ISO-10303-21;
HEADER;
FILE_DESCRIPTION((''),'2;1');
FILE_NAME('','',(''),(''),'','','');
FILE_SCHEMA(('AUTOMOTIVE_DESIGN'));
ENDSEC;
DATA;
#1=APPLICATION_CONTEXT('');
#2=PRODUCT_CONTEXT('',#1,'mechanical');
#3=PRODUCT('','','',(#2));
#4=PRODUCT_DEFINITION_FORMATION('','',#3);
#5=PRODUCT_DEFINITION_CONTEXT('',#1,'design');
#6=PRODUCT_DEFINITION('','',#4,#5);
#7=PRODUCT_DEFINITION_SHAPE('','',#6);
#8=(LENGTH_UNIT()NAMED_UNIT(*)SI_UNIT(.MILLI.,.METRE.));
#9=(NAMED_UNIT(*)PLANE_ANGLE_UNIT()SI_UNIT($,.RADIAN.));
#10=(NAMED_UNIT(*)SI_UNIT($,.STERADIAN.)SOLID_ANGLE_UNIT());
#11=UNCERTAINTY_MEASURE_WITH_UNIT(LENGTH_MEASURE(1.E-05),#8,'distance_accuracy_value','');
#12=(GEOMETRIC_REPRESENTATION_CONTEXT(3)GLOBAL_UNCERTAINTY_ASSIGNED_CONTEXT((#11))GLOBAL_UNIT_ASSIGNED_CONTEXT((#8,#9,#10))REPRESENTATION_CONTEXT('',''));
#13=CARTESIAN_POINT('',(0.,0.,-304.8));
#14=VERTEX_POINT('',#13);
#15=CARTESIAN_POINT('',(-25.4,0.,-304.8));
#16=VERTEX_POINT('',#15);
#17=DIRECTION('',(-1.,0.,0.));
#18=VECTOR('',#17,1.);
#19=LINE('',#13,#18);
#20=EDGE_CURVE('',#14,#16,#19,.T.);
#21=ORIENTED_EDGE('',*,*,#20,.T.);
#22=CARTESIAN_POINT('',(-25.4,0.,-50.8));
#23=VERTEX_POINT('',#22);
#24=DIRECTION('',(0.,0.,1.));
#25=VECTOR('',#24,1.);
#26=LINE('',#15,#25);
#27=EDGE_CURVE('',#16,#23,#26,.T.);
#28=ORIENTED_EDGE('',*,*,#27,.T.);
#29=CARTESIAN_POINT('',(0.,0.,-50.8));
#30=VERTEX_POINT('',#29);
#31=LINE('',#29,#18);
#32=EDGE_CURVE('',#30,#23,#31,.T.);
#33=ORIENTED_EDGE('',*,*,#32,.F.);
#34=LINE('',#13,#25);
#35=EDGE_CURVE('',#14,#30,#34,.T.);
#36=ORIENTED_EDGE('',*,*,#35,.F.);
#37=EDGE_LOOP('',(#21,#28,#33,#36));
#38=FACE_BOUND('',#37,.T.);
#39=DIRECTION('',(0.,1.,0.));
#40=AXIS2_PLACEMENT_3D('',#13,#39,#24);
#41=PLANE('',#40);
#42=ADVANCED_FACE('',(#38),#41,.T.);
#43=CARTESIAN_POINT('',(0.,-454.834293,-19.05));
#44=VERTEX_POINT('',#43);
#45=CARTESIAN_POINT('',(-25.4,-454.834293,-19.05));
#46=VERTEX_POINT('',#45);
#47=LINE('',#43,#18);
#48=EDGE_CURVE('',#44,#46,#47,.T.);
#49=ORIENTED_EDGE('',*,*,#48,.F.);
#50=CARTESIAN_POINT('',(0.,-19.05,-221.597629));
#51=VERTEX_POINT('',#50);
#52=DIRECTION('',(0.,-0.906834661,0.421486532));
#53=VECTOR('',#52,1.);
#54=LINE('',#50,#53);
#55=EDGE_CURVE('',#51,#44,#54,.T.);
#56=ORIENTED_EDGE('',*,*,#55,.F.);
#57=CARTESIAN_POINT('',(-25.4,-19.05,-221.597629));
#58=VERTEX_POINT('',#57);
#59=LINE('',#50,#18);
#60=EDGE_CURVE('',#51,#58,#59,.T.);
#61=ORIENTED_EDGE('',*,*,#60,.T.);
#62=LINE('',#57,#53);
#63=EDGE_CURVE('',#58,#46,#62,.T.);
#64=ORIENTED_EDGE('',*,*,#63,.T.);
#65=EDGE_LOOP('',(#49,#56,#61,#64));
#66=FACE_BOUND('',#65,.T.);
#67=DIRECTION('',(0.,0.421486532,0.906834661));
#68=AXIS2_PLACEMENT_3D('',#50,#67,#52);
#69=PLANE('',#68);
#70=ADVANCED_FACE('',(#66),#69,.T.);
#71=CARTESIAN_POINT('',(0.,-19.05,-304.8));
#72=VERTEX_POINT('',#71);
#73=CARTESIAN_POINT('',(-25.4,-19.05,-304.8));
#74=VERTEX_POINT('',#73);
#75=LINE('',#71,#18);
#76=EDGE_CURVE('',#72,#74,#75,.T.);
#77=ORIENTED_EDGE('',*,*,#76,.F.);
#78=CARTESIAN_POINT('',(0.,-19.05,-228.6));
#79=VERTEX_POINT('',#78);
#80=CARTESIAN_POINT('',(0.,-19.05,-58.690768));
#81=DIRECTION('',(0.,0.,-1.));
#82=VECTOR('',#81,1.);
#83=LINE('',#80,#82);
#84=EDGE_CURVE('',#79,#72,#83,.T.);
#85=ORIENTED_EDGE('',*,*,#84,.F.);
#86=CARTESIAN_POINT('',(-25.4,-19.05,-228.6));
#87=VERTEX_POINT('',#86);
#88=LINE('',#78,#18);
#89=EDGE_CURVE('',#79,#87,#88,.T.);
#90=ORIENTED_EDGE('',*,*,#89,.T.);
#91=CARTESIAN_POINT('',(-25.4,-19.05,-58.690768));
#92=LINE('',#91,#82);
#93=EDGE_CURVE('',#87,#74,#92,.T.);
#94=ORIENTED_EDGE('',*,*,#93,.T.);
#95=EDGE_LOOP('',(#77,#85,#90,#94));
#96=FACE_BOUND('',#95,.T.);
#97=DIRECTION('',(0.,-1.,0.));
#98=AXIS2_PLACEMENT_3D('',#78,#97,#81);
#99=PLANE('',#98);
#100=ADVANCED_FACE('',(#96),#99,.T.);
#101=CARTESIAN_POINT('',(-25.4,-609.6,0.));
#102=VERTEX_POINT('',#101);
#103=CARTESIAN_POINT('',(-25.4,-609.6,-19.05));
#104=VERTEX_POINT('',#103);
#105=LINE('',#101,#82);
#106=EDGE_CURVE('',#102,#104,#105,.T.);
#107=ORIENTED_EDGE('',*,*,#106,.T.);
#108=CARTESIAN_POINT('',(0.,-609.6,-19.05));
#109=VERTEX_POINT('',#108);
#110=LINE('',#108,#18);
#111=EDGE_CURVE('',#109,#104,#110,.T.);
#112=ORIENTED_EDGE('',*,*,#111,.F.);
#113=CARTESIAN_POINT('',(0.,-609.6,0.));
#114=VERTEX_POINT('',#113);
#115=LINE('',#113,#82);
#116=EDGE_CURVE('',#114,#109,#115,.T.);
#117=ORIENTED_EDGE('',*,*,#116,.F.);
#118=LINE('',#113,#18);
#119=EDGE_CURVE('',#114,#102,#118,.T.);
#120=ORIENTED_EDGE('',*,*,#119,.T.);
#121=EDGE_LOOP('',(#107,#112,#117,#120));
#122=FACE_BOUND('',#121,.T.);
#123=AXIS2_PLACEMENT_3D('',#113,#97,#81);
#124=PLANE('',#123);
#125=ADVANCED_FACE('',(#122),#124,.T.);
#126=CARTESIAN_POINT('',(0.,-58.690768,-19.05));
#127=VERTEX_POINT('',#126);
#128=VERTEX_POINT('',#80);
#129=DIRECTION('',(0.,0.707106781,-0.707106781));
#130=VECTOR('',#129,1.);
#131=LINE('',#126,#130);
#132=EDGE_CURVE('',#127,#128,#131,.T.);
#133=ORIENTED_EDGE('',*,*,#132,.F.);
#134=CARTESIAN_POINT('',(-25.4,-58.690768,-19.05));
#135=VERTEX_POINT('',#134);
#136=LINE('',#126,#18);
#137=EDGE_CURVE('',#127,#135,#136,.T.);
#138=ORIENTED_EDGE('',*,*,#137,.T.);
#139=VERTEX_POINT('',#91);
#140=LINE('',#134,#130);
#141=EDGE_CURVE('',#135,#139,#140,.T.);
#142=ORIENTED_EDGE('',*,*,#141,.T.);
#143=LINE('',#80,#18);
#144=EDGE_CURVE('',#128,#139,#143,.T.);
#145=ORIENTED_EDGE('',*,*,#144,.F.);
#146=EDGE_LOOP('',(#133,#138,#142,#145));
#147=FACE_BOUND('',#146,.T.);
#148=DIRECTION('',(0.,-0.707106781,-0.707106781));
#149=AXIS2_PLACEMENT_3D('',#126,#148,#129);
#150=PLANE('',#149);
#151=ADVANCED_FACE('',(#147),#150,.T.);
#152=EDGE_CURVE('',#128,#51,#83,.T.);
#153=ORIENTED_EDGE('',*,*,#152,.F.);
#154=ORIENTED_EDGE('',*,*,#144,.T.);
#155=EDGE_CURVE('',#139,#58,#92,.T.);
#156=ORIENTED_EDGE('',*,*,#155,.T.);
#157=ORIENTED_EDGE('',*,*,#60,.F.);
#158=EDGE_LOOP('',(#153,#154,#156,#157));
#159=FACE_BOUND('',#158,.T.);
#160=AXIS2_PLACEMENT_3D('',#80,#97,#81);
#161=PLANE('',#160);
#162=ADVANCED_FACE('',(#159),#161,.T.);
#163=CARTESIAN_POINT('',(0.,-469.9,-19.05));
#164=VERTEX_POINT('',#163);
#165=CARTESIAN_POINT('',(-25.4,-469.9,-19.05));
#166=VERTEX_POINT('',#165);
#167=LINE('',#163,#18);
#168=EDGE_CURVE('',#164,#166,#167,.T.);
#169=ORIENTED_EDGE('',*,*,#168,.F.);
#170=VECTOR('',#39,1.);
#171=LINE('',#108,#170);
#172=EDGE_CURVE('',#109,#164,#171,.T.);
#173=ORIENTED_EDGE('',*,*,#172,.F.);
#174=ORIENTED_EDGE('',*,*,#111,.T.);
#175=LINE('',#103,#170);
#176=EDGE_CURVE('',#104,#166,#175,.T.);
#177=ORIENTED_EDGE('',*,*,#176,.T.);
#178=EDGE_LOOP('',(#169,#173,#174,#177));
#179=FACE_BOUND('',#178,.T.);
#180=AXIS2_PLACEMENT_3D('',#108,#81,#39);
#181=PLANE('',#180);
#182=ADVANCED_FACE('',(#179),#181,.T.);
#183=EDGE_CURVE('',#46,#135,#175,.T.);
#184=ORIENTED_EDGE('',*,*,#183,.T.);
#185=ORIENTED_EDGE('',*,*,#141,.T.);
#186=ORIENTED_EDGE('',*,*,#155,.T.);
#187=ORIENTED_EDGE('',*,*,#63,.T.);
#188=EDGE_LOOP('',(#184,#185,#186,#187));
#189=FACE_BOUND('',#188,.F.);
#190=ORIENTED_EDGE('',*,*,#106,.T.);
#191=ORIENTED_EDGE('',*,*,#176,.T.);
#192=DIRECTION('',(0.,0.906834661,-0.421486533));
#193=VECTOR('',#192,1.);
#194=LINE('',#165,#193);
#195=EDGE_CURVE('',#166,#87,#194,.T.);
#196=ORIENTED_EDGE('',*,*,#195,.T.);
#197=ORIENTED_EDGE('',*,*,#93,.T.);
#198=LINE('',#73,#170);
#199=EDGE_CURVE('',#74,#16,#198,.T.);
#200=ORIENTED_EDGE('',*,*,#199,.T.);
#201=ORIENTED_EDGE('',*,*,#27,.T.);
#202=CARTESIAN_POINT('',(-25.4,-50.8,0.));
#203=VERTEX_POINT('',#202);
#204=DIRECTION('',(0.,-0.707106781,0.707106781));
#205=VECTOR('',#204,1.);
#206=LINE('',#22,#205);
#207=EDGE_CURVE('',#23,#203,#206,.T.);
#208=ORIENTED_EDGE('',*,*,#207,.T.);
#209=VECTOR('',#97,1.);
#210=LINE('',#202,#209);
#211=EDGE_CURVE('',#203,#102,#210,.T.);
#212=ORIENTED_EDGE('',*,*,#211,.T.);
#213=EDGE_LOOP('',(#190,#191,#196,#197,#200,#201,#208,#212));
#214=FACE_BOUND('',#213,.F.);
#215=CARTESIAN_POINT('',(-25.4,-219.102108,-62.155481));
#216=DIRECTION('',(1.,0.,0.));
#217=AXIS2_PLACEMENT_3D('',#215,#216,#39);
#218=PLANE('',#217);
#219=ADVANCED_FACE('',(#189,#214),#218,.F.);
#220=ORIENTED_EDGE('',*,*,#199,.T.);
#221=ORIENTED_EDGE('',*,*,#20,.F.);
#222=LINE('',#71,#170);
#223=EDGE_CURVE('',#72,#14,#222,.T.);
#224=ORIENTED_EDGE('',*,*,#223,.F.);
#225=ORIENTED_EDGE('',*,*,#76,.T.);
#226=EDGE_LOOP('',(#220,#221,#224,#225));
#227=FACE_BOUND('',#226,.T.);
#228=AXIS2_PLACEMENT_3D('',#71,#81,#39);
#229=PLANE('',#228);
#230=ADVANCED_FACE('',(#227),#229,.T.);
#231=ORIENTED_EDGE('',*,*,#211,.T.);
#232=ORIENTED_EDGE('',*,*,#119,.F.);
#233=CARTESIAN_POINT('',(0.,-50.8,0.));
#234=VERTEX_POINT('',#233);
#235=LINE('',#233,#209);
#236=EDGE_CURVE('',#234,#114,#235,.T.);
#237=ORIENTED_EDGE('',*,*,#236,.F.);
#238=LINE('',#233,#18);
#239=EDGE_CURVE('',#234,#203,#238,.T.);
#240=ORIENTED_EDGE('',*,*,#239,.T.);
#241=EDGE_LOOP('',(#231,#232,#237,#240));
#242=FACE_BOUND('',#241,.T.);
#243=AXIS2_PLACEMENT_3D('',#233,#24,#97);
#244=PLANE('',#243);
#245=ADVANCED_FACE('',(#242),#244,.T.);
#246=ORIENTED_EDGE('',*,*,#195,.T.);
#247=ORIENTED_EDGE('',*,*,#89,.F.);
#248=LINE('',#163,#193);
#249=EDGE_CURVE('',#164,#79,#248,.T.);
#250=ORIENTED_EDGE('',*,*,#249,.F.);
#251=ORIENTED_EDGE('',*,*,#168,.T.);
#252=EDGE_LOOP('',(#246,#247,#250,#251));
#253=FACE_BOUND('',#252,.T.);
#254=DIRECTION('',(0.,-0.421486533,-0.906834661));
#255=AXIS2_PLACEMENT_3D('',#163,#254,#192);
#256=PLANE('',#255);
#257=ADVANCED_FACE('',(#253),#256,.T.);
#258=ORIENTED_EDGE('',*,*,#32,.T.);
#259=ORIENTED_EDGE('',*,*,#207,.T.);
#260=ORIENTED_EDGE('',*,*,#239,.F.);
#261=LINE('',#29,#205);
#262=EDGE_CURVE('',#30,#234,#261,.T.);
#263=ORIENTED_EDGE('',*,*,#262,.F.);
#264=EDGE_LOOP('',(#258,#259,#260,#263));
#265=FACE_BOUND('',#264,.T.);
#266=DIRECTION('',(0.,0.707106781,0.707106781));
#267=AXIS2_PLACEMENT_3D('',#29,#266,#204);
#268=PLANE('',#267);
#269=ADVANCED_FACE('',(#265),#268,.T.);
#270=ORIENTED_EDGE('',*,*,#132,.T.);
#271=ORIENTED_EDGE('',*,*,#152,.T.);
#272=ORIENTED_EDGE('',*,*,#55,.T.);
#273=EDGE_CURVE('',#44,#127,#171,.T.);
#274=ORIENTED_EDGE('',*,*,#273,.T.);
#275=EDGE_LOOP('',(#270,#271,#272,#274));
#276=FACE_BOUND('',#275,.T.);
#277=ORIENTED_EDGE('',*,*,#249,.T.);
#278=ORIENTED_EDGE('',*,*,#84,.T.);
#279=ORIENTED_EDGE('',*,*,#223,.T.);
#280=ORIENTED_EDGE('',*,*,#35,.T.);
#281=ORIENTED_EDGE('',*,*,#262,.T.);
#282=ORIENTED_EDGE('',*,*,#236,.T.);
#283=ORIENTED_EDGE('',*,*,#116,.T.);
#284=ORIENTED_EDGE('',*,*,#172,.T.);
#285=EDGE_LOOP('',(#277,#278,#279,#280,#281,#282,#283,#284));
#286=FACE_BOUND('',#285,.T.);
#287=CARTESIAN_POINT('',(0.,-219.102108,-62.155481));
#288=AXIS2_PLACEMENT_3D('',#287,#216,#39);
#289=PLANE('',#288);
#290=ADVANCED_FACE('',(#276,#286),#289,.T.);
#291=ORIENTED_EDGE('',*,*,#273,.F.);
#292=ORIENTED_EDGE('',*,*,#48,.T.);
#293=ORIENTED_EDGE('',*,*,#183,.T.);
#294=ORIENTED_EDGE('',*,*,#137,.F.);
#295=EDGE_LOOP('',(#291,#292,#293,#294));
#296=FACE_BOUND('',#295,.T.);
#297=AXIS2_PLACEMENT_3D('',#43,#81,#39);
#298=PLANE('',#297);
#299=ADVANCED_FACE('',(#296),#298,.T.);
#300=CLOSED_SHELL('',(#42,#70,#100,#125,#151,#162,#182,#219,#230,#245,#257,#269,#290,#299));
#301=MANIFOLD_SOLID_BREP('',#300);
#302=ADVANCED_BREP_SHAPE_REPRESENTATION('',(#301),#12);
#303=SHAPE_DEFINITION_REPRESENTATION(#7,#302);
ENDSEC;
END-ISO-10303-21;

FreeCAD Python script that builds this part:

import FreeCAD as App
import Part
import Sketcher

V = App.Vector
Q = App.Units.Quantity

doc = App.newDocument("Part")
body = doc.addObject("PartDesign::Body", "Body")

sketch1 = body.newObject("Sketcher::SketchObject", "Sketch")
sketch1.AttachmentSupport = (doc.getObject("YZ_Plane"), [""])
sketch1.MapMode = "FlatFace"
sketch1.addGeometry(Part.LineSegment(V(0, -51, 0), V(-51, 0, 0)), False)
sketch1.addGeometry(Part.LineSegment(V(-51, 0, 0), V(-610, 0, 0)), False)
sketch1.addGeometry(Part.LineSegment(V(-610, 0, 0), V(-610, -19, 0)), False)
sketch1.addGeometry(Part.LineSegment(V(-610, -19, 0), V(-470, -19, 0)), False)
sketch1.addGeometry(Part.LineSegment(V(-470, -19, 0), V(-19, -229, 0)), False)
sketch1.addGeometry(Part.LineSegment(V(-19, -229, 0), V(-19, -305, 0)), False)
sketch1.addGeometry(Part.LineSegment(V(-19, -305, 0), V(0, -305, 0)), False)
sketch1.addGeometry(Part.LineSegment(V(0, -305, 0), V(0, -51, 0)), False)
sketch1.addGeometry(Part.LineSegment(V(-455, -19, 0), V(-59, -19, 0)), False)
sketch1.addGeometry(Part.LineSegment(V(-59, -19, 0), V(-19, -59, 0)), False)
sketch1.addGeometry(Part.LineSegment(V(-19, -59, 0), V(-19, -222, 0)), False)
sketch1.addGeometry(Part.LineSegment(V(-19, -222, 0), V(-455, -19, 0)), False)
sketch1.addConstraint(Sketcher.Constraint("Coincident", 0, 2, 1, 1))
sketch1.addConstraint(Sketcher.Constraint("Coincident", 1, 2, 2, 1))
sketch1.addConstraint(Sketcher.Constraint("Coincident", 2, 2, 3, 1))
sketch1.addConstraint(Sketcher.Constraint("Coincident", 3, 2, 4, 1))
sketch1.addConstraint(Sketcher.Constraint("Coincident", 4, 2, 5, 1))
sketch1.addConstraint(Sketcher.Constraint("Coincident", 5, 2, 6, 1))
sketch1.addConstraint(Sketcher.Constraint("Coincident", 6, 2, 7, 1))
sketch1.addConstraint(Sketcher.Constraint("Coincident", 7, 2, 0, 1))
sketch1.addConstraint(Sketcher.Constraint("Coincident", 8, 2, 9, 1))
sketch1.addConstraint(Sketcher.Constraint("Coincident", 9, 2, 10, 1))
sketch1.addConstraint(Sketcher.Constraint("Coincident", 10, 2, 11, 1))
sketch1.addConstraint(Sketcher.Constraint("Coincident", 11, 2, 8, 1))
sketch1.addConstraint(Sketcher.Constraint("Horizontal", 1))
sketch1.addConstraint(Sketcher.Constraint("Vertical", 2))
sketch1.addConstraint(Sketcher.Constraint("Horizontal", 3))
sketch1.addConstraint(Sketcher.Constraint("Vertical", 5))
sketch1.addConstraint(Sketcher.Constraint("Horizontal", 6))
sketch1.addConstraint(Sketcher.Constraint("Vertical", 7))
sketch1.addConstraint(Sketcher.Constraint("Horizontal", 8))
sketch1.addConstraint(Sketcher.Constraint("Vertical", 10))
sketch1.addConstraint(Sketcher.Constraint("PointOnObject", 0, 2, -1))
sketch1.addConstraint(Sketcher.Constraint("PointOnObject", 6, 2, -2))
sketch1.addConstraint(Sketcher.Constraint("Parallel", 0, 9))
sketch1.addConstraint(Sketcher.Constraint("Parallel", 4, 11))
sketch1.addConstraint(Sketcher.Constraint("Horizontal", 3, 2, 8, 2))
sketch1.addConstraint(Sketcher.Constraint("Vertical", 5, 2, 9, 2))
sketch1.addConstraint(Sketcher.Constraint("Equal", 6, 2))
sketch1.addConstraint(Sketcher.Constraint("DistanceX", 1, 2, 1, 1, Q("22 in")))
sketch1.addConstraint(Sketcher.Constraint("DistanceY", 5, 2, 5, 1, Q("3 in")))
sketch1.addConstraint(Sketcher.Constraint("DistanceY", 7, 1, 7, 2, Q("10 in")))
sketch1.addConstraint(Sketcher.Constraint("DistanceX", 3, 1, 3, 2, Q("5.5 in")))
sketch1.addConstraint(Sketcher.Constraint("DistanceX", 0, 2, -1, 1, Q("2 in")))
sketch1.addConstraint(Sketcher.Constraint("DistanceY", 4, 2, -1, 1, Q("9 in")))
sketch1.addConstraint(Sketcher.Constraint("DistanceX", 6, 1, 6, 2, Q("0.75 in")))
sketch1.addConstraint(Sketcher.Constraint("Distance", 11, 480.5554))
sketch1.addConstraint(Sketcher.Constraint("DistanceY", 10, 2, 10, 1, 162.906861))
pad1 = body.newObject("PartDesign::Pad", "Pad")
pad1.Profile = sketch1
pad1.Length = Q("1 in")
pad1.Reversed = True

doc.recompute()
